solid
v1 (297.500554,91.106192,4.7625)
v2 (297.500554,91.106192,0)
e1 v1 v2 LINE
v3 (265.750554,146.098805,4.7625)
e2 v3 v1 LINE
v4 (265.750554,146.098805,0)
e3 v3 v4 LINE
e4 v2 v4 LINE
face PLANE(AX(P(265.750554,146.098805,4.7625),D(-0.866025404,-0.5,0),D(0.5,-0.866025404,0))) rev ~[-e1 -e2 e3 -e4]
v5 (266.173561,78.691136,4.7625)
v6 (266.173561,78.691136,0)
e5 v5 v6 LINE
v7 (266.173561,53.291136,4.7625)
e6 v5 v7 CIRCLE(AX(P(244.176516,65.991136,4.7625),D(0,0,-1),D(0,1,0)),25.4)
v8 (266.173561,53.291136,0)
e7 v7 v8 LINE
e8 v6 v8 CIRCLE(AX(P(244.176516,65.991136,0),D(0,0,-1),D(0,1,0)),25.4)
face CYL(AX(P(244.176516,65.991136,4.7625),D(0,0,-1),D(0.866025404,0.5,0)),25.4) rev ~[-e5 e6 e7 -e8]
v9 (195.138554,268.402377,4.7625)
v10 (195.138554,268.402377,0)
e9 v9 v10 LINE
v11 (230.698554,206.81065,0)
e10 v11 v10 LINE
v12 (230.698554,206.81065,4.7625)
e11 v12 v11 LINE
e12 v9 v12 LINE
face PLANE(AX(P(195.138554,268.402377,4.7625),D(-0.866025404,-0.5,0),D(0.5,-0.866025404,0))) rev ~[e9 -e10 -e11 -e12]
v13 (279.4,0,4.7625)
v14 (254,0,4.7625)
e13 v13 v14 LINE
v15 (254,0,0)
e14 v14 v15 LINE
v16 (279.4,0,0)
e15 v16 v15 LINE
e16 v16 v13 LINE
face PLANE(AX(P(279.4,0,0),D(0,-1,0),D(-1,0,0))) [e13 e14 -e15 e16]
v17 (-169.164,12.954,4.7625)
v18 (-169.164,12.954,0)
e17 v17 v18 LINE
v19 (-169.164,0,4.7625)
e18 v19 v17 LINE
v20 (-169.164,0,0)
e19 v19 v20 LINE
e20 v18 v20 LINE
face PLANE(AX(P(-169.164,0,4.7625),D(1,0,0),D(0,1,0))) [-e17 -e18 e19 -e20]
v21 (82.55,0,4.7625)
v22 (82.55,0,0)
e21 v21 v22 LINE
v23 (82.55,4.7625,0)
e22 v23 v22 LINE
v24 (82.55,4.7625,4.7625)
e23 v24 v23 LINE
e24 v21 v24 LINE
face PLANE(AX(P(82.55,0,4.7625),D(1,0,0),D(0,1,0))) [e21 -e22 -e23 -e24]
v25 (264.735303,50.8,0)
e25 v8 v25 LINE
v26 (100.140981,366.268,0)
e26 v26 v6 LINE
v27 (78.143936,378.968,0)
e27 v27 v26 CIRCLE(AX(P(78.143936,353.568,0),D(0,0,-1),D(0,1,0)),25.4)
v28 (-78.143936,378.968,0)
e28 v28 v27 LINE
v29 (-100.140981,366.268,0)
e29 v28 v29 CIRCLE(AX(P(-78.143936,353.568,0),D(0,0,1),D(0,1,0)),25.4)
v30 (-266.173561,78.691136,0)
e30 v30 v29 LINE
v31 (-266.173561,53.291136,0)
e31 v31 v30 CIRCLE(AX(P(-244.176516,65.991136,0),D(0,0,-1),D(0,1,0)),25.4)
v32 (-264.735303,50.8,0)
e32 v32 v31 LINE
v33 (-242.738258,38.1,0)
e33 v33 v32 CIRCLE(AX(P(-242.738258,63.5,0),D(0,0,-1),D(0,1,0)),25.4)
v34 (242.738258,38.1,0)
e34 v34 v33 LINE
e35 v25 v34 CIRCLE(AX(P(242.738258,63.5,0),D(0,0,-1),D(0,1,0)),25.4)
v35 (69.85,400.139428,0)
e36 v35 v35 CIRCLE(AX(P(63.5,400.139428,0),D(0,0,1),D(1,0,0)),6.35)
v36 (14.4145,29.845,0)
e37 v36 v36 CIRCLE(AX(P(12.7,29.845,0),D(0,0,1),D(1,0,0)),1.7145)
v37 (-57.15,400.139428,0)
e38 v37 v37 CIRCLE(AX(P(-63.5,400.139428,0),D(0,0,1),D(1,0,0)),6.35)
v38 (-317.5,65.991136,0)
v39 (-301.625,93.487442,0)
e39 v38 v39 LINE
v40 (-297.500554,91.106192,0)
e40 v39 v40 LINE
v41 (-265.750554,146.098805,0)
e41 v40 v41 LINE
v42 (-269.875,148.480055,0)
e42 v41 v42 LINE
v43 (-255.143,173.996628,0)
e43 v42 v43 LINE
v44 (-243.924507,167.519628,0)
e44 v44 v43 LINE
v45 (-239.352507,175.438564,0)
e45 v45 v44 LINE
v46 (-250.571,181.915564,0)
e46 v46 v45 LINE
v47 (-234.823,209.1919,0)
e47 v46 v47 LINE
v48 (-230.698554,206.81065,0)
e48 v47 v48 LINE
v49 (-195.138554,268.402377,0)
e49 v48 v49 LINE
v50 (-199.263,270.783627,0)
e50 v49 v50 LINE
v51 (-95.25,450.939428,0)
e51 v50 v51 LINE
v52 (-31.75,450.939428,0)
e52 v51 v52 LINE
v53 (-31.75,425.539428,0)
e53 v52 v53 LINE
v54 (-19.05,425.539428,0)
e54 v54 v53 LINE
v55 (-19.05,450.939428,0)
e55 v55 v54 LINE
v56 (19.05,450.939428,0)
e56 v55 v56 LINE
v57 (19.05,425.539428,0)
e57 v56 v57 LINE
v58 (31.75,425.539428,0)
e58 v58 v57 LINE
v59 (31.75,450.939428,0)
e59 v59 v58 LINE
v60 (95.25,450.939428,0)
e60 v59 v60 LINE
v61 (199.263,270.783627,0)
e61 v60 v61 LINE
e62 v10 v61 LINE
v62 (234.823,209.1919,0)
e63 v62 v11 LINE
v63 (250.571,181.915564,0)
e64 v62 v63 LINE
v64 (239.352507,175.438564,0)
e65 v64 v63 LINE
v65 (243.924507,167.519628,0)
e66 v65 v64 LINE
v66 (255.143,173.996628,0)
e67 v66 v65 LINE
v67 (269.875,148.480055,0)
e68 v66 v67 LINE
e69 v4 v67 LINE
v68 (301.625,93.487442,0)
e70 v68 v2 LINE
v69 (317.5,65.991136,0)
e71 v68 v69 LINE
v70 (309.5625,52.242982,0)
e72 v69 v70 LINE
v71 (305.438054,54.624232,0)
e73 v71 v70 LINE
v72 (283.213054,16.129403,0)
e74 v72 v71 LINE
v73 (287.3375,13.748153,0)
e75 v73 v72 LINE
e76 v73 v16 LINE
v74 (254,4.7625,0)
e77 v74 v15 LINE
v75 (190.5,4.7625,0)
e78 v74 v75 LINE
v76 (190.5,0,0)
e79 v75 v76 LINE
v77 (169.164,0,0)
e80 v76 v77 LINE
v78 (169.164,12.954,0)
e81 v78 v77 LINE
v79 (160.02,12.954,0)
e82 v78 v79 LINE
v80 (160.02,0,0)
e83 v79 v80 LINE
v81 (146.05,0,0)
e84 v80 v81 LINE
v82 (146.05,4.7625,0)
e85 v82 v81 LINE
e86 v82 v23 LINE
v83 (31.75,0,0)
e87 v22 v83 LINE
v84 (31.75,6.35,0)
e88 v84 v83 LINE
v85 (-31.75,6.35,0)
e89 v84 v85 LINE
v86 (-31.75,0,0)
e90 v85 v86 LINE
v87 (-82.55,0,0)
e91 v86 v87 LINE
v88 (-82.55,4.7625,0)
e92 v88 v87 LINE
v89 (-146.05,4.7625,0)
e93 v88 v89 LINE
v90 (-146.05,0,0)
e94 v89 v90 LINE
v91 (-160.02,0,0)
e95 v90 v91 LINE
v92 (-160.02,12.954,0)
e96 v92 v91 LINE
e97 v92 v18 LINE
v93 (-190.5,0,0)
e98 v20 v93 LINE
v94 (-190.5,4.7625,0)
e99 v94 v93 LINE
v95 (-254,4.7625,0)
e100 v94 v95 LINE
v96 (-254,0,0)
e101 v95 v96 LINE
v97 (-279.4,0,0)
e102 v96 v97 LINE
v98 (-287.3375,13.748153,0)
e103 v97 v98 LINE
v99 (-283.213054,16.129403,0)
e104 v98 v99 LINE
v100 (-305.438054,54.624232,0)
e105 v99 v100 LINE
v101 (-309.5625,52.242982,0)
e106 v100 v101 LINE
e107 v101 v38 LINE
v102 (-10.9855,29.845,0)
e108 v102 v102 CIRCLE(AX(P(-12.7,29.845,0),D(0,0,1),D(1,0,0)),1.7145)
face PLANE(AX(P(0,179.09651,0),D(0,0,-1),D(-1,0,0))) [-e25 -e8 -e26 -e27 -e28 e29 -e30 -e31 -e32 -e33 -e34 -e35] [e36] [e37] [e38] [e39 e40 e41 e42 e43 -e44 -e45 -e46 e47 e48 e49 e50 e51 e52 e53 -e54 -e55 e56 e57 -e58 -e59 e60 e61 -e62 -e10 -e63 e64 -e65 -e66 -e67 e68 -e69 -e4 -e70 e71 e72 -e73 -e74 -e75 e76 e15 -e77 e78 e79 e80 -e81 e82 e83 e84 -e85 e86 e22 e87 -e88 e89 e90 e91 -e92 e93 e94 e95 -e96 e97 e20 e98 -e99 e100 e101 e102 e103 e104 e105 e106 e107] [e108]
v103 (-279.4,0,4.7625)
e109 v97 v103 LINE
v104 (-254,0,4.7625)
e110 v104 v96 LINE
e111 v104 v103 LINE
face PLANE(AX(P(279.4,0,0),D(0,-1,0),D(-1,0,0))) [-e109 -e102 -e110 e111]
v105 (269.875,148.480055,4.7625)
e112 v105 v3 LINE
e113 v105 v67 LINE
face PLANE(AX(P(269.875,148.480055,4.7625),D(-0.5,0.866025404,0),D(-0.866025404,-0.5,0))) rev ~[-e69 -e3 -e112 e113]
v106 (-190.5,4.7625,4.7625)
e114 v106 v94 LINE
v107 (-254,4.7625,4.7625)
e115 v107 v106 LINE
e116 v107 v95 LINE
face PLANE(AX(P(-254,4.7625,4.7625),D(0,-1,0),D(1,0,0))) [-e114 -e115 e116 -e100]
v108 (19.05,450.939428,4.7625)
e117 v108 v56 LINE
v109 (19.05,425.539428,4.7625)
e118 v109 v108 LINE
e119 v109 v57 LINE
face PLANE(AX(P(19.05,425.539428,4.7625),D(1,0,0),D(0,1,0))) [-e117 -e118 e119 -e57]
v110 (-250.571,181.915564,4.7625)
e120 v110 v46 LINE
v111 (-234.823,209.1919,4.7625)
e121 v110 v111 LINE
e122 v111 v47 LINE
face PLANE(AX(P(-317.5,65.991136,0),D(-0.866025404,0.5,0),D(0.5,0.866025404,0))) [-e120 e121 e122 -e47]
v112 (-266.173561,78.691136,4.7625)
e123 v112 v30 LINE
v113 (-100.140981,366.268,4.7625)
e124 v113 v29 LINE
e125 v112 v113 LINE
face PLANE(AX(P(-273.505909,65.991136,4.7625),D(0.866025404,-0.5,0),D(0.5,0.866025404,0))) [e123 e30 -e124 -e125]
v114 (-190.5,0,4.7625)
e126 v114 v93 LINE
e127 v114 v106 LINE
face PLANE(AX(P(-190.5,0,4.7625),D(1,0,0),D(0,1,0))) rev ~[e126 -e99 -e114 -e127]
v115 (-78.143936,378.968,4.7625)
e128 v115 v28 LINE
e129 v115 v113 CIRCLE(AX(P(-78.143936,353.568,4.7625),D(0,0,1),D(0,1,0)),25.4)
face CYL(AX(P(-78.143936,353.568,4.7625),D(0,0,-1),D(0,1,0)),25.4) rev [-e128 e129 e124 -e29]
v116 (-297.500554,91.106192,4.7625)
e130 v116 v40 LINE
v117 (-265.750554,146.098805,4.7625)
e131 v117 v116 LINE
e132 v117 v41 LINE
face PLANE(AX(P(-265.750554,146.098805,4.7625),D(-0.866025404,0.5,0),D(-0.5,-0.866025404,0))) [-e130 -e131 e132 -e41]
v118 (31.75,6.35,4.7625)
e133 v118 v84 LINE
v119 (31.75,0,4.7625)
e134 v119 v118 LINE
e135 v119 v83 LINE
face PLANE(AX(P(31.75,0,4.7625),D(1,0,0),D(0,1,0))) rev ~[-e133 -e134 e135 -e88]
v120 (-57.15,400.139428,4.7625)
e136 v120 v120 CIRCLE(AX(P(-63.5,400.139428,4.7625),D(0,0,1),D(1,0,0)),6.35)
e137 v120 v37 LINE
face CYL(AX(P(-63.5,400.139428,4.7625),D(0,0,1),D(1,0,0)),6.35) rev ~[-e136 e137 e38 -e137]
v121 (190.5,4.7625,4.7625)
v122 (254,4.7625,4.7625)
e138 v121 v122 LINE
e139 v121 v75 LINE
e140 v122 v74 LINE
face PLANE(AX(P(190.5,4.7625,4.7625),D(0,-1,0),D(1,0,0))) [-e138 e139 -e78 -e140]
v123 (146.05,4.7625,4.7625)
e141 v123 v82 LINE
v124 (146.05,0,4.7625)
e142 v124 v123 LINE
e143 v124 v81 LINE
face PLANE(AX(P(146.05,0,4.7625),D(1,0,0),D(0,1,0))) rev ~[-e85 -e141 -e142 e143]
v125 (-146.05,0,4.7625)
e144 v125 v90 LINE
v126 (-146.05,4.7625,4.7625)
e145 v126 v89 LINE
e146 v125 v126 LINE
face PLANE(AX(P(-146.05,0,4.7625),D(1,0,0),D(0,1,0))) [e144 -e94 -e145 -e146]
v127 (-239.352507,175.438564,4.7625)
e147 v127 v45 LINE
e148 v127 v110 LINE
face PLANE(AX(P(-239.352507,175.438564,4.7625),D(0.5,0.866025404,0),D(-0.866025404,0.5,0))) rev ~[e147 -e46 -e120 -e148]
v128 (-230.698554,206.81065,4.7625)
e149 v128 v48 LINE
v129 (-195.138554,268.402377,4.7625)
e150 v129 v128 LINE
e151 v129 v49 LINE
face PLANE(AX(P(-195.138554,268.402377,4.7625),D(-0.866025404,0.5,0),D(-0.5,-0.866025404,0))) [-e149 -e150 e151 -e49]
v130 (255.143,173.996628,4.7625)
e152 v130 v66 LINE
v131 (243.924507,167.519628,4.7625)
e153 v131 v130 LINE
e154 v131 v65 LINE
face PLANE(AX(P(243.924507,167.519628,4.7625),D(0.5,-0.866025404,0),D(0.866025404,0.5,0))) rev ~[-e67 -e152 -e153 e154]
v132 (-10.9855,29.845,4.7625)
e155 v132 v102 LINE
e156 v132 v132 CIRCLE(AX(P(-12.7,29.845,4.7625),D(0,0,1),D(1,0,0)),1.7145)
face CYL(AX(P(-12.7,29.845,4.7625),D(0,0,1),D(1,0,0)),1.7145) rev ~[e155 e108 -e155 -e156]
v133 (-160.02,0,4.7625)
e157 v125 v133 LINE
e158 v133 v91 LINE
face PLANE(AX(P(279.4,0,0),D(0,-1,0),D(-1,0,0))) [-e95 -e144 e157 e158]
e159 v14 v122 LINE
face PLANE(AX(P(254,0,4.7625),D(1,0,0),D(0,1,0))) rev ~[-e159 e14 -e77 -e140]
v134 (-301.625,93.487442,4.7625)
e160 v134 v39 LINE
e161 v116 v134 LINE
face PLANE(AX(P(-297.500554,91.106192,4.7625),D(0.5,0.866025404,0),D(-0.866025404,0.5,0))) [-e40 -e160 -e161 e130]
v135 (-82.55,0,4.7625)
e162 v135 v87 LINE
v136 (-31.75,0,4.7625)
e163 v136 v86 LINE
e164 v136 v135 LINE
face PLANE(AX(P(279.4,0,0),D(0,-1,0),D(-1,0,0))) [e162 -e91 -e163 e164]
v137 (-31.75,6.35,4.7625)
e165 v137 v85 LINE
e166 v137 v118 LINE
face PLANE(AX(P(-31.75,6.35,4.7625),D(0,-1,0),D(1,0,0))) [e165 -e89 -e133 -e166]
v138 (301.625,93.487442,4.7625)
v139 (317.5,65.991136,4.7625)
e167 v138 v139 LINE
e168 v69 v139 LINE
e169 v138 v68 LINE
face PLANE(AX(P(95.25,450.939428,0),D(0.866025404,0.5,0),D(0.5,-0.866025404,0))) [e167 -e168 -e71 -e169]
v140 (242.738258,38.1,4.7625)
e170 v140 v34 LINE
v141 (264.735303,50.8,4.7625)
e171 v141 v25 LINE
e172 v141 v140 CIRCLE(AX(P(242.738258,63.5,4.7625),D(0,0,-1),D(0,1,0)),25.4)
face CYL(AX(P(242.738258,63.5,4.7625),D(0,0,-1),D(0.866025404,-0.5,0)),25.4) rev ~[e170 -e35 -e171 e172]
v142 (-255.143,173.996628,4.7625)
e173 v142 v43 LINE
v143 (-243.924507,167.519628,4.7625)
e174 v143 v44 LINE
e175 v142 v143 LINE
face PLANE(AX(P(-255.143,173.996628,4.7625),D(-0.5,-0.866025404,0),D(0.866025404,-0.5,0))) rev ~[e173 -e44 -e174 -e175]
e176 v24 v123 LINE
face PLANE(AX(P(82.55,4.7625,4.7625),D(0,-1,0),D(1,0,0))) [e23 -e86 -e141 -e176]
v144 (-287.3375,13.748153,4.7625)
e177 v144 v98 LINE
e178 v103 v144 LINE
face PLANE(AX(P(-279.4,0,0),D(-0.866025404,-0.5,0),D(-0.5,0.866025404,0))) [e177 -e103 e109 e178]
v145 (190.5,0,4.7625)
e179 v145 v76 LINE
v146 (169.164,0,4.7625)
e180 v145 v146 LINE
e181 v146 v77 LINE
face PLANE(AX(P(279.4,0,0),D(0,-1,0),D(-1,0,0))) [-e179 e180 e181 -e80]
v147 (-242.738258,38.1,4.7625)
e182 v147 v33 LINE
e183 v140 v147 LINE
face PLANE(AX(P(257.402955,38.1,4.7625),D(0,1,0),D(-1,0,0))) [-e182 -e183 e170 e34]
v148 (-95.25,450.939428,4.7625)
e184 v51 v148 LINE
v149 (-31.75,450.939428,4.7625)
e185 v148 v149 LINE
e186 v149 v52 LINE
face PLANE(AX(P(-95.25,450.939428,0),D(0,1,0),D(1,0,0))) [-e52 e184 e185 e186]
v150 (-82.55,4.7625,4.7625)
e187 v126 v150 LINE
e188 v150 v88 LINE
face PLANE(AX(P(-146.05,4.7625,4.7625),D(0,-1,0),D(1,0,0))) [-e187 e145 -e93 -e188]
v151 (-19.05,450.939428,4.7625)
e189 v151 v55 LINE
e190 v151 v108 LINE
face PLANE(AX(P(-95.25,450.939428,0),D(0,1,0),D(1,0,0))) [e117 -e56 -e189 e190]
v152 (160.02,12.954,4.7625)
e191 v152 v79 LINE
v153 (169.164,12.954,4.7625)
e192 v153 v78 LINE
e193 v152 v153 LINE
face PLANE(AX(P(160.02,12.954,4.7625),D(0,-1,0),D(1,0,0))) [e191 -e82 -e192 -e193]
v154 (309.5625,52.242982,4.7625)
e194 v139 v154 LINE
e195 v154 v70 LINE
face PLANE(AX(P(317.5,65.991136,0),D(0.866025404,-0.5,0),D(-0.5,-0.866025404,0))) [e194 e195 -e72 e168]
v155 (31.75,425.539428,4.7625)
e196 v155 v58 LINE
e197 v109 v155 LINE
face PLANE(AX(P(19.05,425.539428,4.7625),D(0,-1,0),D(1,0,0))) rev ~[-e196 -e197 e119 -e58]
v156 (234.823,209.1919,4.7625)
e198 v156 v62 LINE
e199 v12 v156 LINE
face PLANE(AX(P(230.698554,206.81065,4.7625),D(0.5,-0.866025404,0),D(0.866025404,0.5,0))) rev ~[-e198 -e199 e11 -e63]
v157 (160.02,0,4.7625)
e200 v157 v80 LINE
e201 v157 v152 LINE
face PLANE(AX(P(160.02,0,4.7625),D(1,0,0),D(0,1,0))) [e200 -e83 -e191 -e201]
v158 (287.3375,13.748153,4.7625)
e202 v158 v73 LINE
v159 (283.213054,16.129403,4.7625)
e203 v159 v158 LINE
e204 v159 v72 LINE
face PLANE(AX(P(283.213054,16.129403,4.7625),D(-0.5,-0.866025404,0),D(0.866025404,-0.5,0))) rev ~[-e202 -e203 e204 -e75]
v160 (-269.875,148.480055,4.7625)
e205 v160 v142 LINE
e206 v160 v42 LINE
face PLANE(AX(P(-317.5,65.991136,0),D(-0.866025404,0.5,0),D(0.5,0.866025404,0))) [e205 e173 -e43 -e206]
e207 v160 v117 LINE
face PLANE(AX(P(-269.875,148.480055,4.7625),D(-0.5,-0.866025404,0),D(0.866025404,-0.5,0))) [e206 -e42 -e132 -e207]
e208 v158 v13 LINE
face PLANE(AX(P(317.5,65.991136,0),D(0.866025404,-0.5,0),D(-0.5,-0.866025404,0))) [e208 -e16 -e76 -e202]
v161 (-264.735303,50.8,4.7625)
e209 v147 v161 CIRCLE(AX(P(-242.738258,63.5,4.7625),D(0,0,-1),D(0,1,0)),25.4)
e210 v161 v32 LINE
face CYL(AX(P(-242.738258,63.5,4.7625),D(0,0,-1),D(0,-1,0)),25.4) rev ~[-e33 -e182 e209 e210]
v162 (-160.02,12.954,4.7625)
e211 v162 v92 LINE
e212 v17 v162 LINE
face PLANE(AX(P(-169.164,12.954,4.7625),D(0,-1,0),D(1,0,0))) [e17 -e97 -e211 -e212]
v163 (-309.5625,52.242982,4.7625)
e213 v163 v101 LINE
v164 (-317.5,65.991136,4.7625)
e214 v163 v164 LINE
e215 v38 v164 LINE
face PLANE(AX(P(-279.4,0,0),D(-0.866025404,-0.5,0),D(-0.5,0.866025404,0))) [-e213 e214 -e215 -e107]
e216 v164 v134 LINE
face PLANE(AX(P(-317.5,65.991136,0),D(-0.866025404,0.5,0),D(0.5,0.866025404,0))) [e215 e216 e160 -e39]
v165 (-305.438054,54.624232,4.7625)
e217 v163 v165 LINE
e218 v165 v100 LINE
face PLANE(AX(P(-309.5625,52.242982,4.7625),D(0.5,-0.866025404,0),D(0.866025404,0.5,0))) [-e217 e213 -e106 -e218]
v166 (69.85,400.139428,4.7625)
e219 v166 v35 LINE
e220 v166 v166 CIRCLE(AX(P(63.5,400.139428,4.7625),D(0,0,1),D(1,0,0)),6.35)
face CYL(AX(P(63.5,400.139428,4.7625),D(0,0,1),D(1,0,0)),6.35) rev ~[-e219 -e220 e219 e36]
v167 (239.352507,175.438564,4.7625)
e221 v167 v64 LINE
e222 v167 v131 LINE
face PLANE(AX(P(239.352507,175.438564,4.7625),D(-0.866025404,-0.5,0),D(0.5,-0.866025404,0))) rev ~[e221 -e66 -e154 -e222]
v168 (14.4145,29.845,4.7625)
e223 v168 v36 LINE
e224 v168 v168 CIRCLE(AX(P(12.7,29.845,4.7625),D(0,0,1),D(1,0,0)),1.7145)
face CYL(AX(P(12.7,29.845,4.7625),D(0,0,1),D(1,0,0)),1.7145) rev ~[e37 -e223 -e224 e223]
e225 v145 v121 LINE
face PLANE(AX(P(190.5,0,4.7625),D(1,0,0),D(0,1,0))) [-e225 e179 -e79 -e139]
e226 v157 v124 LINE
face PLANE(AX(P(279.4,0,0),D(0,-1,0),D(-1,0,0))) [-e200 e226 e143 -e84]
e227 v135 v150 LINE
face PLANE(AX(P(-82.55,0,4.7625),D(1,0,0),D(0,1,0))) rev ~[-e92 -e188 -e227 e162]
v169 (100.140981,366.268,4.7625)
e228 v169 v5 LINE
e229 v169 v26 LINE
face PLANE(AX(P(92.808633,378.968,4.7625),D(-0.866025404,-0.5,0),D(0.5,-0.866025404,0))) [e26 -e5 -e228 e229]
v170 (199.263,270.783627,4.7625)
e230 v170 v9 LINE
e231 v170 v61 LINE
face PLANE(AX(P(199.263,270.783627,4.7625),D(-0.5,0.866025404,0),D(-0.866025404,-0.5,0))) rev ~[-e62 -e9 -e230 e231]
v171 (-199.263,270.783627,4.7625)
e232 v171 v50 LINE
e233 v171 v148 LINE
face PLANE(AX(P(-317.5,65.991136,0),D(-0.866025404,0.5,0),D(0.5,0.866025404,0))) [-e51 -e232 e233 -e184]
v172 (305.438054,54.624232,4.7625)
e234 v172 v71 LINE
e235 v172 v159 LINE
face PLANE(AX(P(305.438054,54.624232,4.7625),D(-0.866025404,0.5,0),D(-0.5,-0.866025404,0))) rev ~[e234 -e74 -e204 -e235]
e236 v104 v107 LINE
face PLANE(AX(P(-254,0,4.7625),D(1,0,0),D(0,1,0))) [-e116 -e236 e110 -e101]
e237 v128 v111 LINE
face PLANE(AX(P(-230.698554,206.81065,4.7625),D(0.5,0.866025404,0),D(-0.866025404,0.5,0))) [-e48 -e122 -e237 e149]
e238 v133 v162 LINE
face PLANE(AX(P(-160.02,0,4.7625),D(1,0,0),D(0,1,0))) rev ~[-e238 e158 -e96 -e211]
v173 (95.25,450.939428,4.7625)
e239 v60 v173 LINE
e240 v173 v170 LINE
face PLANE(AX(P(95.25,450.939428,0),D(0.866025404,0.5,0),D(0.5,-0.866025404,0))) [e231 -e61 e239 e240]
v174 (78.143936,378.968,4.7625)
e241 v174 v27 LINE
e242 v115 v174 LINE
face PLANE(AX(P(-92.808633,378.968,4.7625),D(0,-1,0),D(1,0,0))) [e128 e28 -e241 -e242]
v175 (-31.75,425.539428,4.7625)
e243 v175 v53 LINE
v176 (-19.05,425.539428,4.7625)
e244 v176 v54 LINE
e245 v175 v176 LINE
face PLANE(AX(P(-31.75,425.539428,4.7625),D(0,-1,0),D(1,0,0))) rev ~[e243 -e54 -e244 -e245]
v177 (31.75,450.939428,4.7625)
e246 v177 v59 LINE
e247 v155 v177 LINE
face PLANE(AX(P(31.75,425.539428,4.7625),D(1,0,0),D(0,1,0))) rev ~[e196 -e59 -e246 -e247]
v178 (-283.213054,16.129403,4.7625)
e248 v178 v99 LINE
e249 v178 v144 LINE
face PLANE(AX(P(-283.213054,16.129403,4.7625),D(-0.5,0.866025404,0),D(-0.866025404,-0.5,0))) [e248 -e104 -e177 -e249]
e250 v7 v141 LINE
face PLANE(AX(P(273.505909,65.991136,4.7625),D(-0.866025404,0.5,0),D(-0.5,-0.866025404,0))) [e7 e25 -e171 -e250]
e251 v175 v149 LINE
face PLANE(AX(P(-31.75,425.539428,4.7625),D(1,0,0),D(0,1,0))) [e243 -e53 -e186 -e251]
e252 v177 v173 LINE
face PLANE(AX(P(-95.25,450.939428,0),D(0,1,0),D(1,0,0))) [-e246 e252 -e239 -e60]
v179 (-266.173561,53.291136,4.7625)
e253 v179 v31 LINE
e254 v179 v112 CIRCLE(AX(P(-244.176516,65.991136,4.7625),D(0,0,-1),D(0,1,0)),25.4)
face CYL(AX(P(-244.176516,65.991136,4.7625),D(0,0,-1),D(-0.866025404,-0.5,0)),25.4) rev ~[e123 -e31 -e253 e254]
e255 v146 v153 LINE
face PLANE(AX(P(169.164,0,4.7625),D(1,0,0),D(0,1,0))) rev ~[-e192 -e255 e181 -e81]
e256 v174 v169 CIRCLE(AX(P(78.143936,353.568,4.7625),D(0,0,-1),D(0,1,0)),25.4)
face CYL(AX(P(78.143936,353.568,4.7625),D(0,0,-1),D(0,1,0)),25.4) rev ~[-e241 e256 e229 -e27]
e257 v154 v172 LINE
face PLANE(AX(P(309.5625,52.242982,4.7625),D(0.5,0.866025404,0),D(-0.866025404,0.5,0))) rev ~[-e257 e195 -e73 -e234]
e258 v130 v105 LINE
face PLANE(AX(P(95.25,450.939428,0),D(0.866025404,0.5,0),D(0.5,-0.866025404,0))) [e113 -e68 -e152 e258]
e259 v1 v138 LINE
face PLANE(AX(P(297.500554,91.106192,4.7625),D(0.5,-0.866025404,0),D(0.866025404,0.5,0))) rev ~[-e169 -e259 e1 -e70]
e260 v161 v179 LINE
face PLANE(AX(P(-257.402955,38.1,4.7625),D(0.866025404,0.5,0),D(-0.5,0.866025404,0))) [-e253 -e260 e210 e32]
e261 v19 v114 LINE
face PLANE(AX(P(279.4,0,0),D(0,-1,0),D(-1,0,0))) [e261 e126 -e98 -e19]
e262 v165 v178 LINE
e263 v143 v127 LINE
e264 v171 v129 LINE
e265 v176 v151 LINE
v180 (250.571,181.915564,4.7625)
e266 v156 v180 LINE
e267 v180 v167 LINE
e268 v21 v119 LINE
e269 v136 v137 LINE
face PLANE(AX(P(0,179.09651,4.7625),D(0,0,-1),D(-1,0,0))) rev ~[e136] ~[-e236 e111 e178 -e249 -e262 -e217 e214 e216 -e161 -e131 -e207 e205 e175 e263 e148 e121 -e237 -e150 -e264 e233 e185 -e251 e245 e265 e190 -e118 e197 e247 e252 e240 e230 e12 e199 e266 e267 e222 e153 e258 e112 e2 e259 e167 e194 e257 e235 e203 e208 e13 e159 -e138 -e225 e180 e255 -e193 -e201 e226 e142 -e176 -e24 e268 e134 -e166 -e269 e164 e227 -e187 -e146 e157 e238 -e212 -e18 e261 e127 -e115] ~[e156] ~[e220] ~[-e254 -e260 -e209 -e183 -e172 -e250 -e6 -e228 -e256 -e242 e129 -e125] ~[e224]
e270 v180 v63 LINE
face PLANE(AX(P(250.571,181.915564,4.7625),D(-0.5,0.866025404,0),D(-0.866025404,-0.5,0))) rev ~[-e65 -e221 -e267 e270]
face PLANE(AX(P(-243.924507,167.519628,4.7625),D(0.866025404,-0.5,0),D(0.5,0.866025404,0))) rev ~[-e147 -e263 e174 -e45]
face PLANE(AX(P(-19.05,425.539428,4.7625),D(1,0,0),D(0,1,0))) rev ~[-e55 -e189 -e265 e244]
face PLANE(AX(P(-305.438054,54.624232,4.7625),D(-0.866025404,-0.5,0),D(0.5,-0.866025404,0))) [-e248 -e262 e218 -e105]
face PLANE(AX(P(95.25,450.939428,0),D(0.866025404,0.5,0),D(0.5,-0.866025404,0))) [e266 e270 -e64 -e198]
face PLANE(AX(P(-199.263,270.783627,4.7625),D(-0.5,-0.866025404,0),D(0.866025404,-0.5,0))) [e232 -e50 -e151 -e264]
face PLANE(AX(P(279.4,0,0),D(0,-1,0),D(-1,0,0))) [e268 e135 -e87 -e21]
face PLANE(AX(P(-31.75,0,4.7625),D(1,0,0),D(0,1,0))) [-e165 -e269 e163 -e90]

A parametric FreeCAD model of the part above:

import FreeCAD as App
import Part
import Sketcher
from FreeCAD import Vector
Q = App.Units.Quantity


def edges_at(feature, points):
    """Names of the edges that pass closest to the given points."""
    edges = feature.Shape.Edges
    near = lambda p: min(range(len(edges)), key=lambda i: edges[i].distToShape(Part.Vertex(*p))[0])
    return sorted({f"Edge{near(p) + 1}" for p in points})

doc = App.newDocument("Part")
body = doc.addObject("PartDesign::Body", "Body")

# Sketch on XY plane
sketch1 = body.newObject("Sketcher::SketchObject", "Sketch")
sketch1.AttachmentSupport = (doc.getObject("XY_Plane"), [""])
sketch1.MapMode = "FlatFace"
sketch1.addGeometry(Part.LineSegment(Vector(95, 451, 0), Vector(-95, 451, 0)), False)
sketch1.addGeometry(Part.LineSegment(Vector(-95, 451, 0), Vector(-318, 66, 0)), False)
sketch1.addGeometry(Part.LineSegment(Vector(-318, 66, 0), Vector(-279, 0, 0)), False)
sketch1.addGeometry(Part.LineSegment(Vector(-279, 0, 0), Vector(279, 0, 0)), False)
sketch1.addGeometry(Part.LineSegment(Vector(279, 0, 0), Vector(318, 66, 0)), False)
sketch1.addGeometry(Part.LineSegment(Vector(318, 66, 0), Vector(95, 451, 0)), False)
sketch1.addConstraint(Sketcher.Constraint("Coincident", 0, 2, 1, 1))
sketch1.addConstraint(Sketcher.Constraint("Coincident", 1, 2, 2, 1))
sketch1.addConstraint(Sketcher.Constraint("Coincident", 2, 2, 3, 1))
sketch1.addConstraint(Sketcher.Constraint("Coincident", 3, 2, 4, 1))
sketch1.addConstraint(Sketcher.Constraint("Coincident", 4, 2, 5, 1))
sketch1.addConstraint(Sketcher.Constraint("Coincident", 5, 2, 0, 1))
sketch1.addConstraint(Sketcher.Constraint("Horizontal", 0))
sketch1.addConstraint(Sketcher.Constraint("Horizontal", 3))
sketch1.addConstraint(Sketcher.Constraint("Symmetric", 2, 2, 3, 2, -1, 1))
sketch1.addConstraint(Sketcher.Constraint("Symmetric", 1, 2, 4, 2, -2))
sketch1.addConstraint(Sketcher.Constraint("Parallel", 1, 4))
sketch1.addConstraint(Sketcher.Constraint("Parallel", 2, 5))
sketch1.addConstraint(Sketcher.Constraint("DistanceX", 3, 1, 3, 2, Q("22 in")))
sketch1.addConstraint(Sketcher.Constraint("Distance", 2, Q("3 in")))
sketch1.addConstraint(Sketcher.Constraint("DistanceX", 0, 2, 0, 1, Q("7.5 in")))
sketch1.addConstraint(Sketcher.Constraint("Angle", 1, Q("-120 deg")))
pad1 = body.newObject("PartDesign::Pad", "Pad")
pad1.Profile = sketch1
pad1.Length = Q("0.1875 in")

# Sketch on XY plane
sketch2 = body.newObject("Sketcher::SketchObject", "Sketch001")
sketch2.AttachmentSupport = (doc.getObject("XY_Plane"), [""])
sketch2.MapMode = "FlatFace"
sketch2.AttachmentOffset = App.Placement(Vector(0, 0, 0.1875 * 25.4), App.Rotation())
sketch2.addGeometry(Part.LineSegment(Vector(93, 379, 0), Vector(-93, 379, 0)), False)
sketch2.addGeometry(Part.LineSegment(Vector(-93, 379, 0), Vector(-274, 66, 0)), False)
sketch2.addGeometry(Part.LineSegment(Vector(-274, 66, 0), Vector(-257, 38, 0)), False)
sketch2.addGeometry(Part.LineSegment(Vector(-257, 38, 0), Vector(257, 38, 0)), False)
sketch2.addGeometry(Part.LineSegment(Vector(257, 38, 0), Vector(274, 66, 0)), False)
sketch2.addGeometry(Part.LineSegment(Vector(274, 66, 0), Vector(93, 379, 0)), False)
sketch2.addConstraint(Sketcher.Constraint("Coincident", 0, 2, 1, 1))
sketch2.addConstraint(Sketcher.Constraint("Coincident", 1, 2, 2, 1))
sketch2.addConstraint(Sketcher.Constraint("Coincident", 2, 2, 3, 1))
sketch2.addConstraint(Sketcher.Constraint("Coincident", 3, 2, 4, 1))
sketch2.addConstraint(Sketcher.Constraint("Coincident", 4, 2, 5, 1))
sketch2.addConstraint(Sketcher.Constraint("Coincident", 5, 2, 0, 1))
sketch2.addConstraint(Sketcher.Constraint("Horizontal", 0))
sketch2.addConstraint(Sketcher.Constraint("Horizontal", 3))
sketch2.addConstraint(Sketcher.Constraint("Symmetric", 1, 2, 4, 2, -2))
sketch2.addConstraint(Sketcher.Constraint("Parallel", 1, 4))
sketch2.addConstraint(Sketcher.Constraint("Parallel", 2, 5))
sketch2.addConstraint(Sketcher.Constraint("Equal", 2, 4))
sketch2.addConstraint(Sketcher.Constraint("Angle", 1, Q("-120 deg")))
sketch2.addConstraint(Sketcher.Constraint("DistanceY", -1, 1, 2, 2, Q("1.5 in")))
sketch2.addConstraint(Sketcher.Constraint("DistanceY", -1, 1, 0, 2, Q("14.92 in")))
sketch2.addConstraint(Sketcher.Constraint("DistanceX", 3, 1, 3, 2, 514.805909))
sketch2.addConstraint(Sketcher.Constraint("Distance", 2, 32.205909))
pocket1 = body.newObject("PartDesign::Pocket", "Pocket")
pocket1.Profile = sketch2
pocket1.Type = "UpToFirst"
doc.recompute()

fillet = body.newObject("PartDesign::Fillet", "Fillet")
fillet.Base = (pocket1, edges_at(pocket1, [
    (-273.506, 65.991, 2.381),
    (-92.809, 378.968, 2.381),
    (92.809, 378.968, 2.381),
    (273.506, 65.991, 2.381),
    (257.403, 38.1, 2.381),
    (-257.403, 38.1, 2.381),
]))
fillet.Radius = Q("1 in")

# Sketch on XY plane
sketch3 = body.newObject("Sketcher::SketchObject", "Sketch002")
sketch3.AttachmentSupport = (doc.getObject("XY_Plane"), [""])
sketch3.MapMode = "FlatFace"
sketch3.AttachmentOffset = App.Placement(Vector(0, 0, 0.1875 * 25.4), App.Rotation())
sketch3.addGeometry(Part.LineSegment(Vector(-254, 4.8, 0), Vector(-254, 0, 0)), False)
sketch3.addGeometry(Part.LineSegment(Vector(-254, 0, 0), Vector(-190.5, 0, 0)), False)
sketch3.addGeometry(Part.LineSegment(Vector(-190.5, 0, 0), Vector(-190.5, 4.8, 0)), False)
sketch3.addGeometry(Part.LineSegment(Vector(-190.5, 4.8, 0), Vector(-254, 4.8, 0)), False)
sketch3.addGeometry(Part.LineSegment(Vector(-146.1, 4.8, 0), Vector(-146.1, 0, 0)), False)
sketch3.addGeometry(Part.LineSegment(Vector(-146.1, 0, 0), Vector(-82.5, 0, 0)), False)
sketch3.addGeometry(Part.LineSegment(Vector(-82.5, 0, 0), Vector(-82.5, 4.8, 0)), False)
sketch3.addGeometry(Part.LineSegment(Vector(-82.5, 4.8, 0), Vector(-146.1, 4.8, 0)), False)
sketch3.addGeometry(Part.LineSegment(Vector(-31.8, 6.3, 0), Vector(-31.8, 0, 0)), False)
sketch3.addGeometry(Part.LineSegment(Vector(-31.8, 0, 0), Vector(31.8, 0, 0)), False)
sketch3.addGeometry(Part.LineSegment(Vector(31.8, 0, 0), Vector(31.8, 6.3, 0)), False)
sketch3.addGeometry(Part.LineSegment(Vector(31.8, 6.3, 0), Vector(-31.8, 6.3, 0)), False)
sketch3.addGeometry(Part.LineSegment(Vector(-195.1, 268.4, 0), Vector(-199.3, 270.8, 0)), False)
sketch3.addGeometry(Part.LineSegment(Vector(-199.3, 270.8, 0), Vector(-234.8, 209.2, 0)), False)
sketch3.addGeometry(Part.LineSegment(Vector(-234.8, 209.2, 0), Vector(-230.7, 206.8, 0)), False)
sketch3.addGeometry(Part.LineSegment(Vector(-230.7, 206.8, 0), Vector(-195.1, 268.4, 0)), False)
sketch3.addGeometry(Part.LineSegment(Vector(-265.8, 146.1, 0), Vector(-269.9, 148.5, 0)), False)
sketch3.addGeometry(Part.LineSegment(Vector(-269.9, 148.5, 0), Vector(-301.6, 93.5, 0)), False)
sketch3.addGeometry(Part.LineSegment(Vector(-301.6, 93.5, 0), Vector(-297.5, 91.1, 0)), False)
sketch3.addGeometry(Part.LineSegment(Vector(-297.5, 91.1, 0), Vector(-265.8, 146.1, 0)), False)
sketch3.addGeometry(Part.LineSegment(Vector(-305.4, 54.6, 0), Vector(-309.6, 52.2, 0)), False)
sketch3.addGeometry(Part.LineSegment(Vector(-309.6, 52.2, 0), Vector(-287.3, 13.7, 0)), False)
sketch3.addGeometry(Part.LineSegment(Vector(-287.3, 13.7, 0), Vector(-283.2, 16.1, 0)), False)
sketch3.addGeometry(Part.LineSegment(Vector(-283.2, 16.1, 0), Vector(-305.4, 54.6, 0)), False)
sketch3.addGeometry(Part.LineSegment(Vector(287.3, 13.7, 0), Vector(309.6, 52.2, 0)), False)
sketch3.addGeometry(Part.LineSegment(Vector(309.6, 52.2, 0), Vector(305.4, 54.6, 0)), False)
sketch3.addGeometry(Part.LineSegment(Vector(305.4, 54.6, 0), Vector(283.2, 16.1, 0)), False)
sketch3.addGeometry(Part.LineSegment(Vector(283.2, 16.1, 0), Vector(287.3, 13.7, 0)), False)
sketch3.addGeometry(Part.LineSegment(Vector(301.6, 93.5, 0), Vector(269.9, 148.5, 0)), False)
sketch3.addGeometry(Part.LineSegment(Vector(269.9, 148.5, 0), Vector(265.8, 146.1, 0)), False)
sketch3.addGeometry(Part.LineSegment(Vector(265.8, 146.1, 0), Vector(297.5, 91.1, 0)), False)
sketch3.addGeometry(Part.LineSegment(Vector(297.5, 91.1, 0), Vector(301.6, 93.5, 0)), False)
sketch3.addGeometry(Part.LineSegment(Vector(234.8, 209.2, 0), Vector(199.3, 270.8, 0)), False)
sketch3.addGeometry(Part.LineSegment(Vector(199.3, 270.8, 0), Vector(195.1, 268.4, 0)), False)
sketch3.addGeometry(Part.LineSegment(Vector(195.1, 268.4, 0), Vector(230.7, 206.8, 0)), False)
sketch3.addGeometry(Part.LineSegment(Vector(230.7, 206.8, 0), Vector(234.8, 209.2, 0)), False)
sketch3.addGeometry(Part.LineSegment(Vector(82.5, 4.8, 0), Vector(82.5, 0, 0)), False)
sketch3.addGeometry(Part.LineSegment(Vector(82.5, 0, 0), Vector(146.1, 0, 0)), False)
sketch3.addGeometry(Part.LineSegment(Vector(146.1, 0, 0), Vector(146.1, 4.8, 0)), False)
sketch3.addGeometry(Part.LineSegment(Vector(146.1, 4.8, 0), Vector(82.5, 4.8, 0)), False)
sketch3.addGeometry(Part.LineSegment(Vector(190.5, 4.8, 0), Vector(190.5, 0, 0)), False)
sketch3.addGeometry(Part.LineSegment(Vector(190.5, 0, 0), Vector(254, 0, 0)), False)
sketch3.addGeometry(Part.LineSegment(Vector(254, 0, 0), Vector(254, 4.8, 0)), False)
sketch3.addGeometry(Part.LineSegment(Vector(254, 4.8, 0), Vector(190.5, 4.8, 0)), False)
sketch3.addGeometry(Part.LineSegment(Vector(-31.8, 450.9, 0), Vector(-31.8, 425.5, 0)), False)
sketch3.addGeometry(Part.LineSegment(Vector(-31.8, 425.5, 0), Vector(-19.1, 425.5, 0)), False)
sketch3.addGeometry(Part.LineSegment(Vector(-19.1, 425.5, 0), Vector(-19.1, 450.9, 0)), False)
sketch3.addGeometry(Part.LineSegment(Vector(-19.1, 450.9, 0), Vector(-31.8, 450.9, 0)), False)
sketch3.addGeometry(Part.LineSegment(Vector(19.1, 450.9, 0), Vector(19.1, 425.5, 0)), False)
sketch3.addGeometry(Part.LineSegment(Vector(19.1, 425.5, 0), Vector(31.8, 425.5, 0)), False)
sketch3.addGeometry(Part.LineSegment(Vector(31.8, 425.5, 0), Vector(31.8, 450.9, 0)), False)
sketch3.addGeometry(Part.LineSegment(Vector(31.8, 450.9, 0), Vector(19.1, 450.9, 0)), False)
sketch3.addConstraint(Sketcher.Constraint("Coincident", 0, 2, 1, 1))
sketch3.addConstraint(Sketcher.Constraint("Coincident", 1, 2, 2, 1))
sketch3.addConstraint(Sketcher.Constraint("Coincident", 2, 2, 3, 1))
sketch3.addConstraint(Sketcher.Constraint("Coincident", 3, 2, 0, 1))
sketch3.addConstraint(Sketcher.Constraint("Coincident", 4, 2, 5, 1))
sketch3.addConstraint(Sketcher.Constraint("Coincident", 5, 2, 6, 1))
sketch3.addConstraint(Sketcher.Constraint("Coincident", 6, 2, 7, 1))
sketch3.addConstraint(Sketcher.Constraint("Coincident", 7, 2, 4, 1))
sketch3.addConstraint(Sketcher.Constraint("Coincident", 8, 2, 9, 1))
sketch3.addConstraint(Sketcher.Constraint("Coincident", 9, 2, 10, 1))
sketch3.addConstraint(Sketcher.Constraint("Coincident", 10, 2, 11, 1))
sketch3.addConstraint(Sketcher.Constraint("Coincident", 11, 2, 8, 1))
sketch3.addConstraint(Sketcher.Constraint("Coincident", 12, 2, 13, 1))
sketch3.addConstraint(Sketcher.Constraint("Coincident", 13, 2, 14, 1))
sketch3.addConstraint(Sketcher.Constraint("Coincident", 14, 2, 15, 1))
sketch3.addConstraint(Sketcher.Constraint("Coincident", 15, 2, 12, 1))
sketch3.addConstraint(Sketcher.Constraint("Coincident", 16, 2, 17, 1))
sketch3.addConstraint(Sketcher.Constraint("Coincident", 17, 2, 18, 1))
sketch3.addConstraint(Sketcher.Constraint("Coincident", 18, 2, 19, 1))
sketch3.addConstraint(Sketcher.Constraint("Coincident", 19, 2, 16, 1))
sketch3.addConstraint(Sketcher.Constraint("Coincident", 20, 2, 21, 1))
sketch3.addConstraint(Sketcher.Constraint("Coincident", 21, 2, 22, 1))
sketch3.addConstraint(Sketcher.Constraint("Coincident", 22, 2, 23, 1))
sketch3.addConstraint(Sketcher.Constraint("Coincident", 23, 2, 20, 1))
sketch3.addConstraint(Sketcher.Constraint("Coincident", 24, 2, 25, 1))
sketch3.addConstraint(Sketcher.Constraint("Coincident", 25, 2, 26, 1))
sketch3.addConstraint(Sketcher.Constraint("Coincident", 26, 2, 27, 1))
sketch3.addConstraint(Sketcher.Constraint("Coincident", 27, 2, 24, 1))
sketch3.addConstraint(Sketcher.Constraint("Coincident", 28, 2, 29, 1))
sketch3.addConstraint(Sketcher.Constraint("Coincident", 29, 2, 30, 1))
sketch3.addConstraint(Sketcher.Constraint("Coincident", 30, 2, 31, 1))
sketch3.addConstraint(Sketcher.Constraint("Coincident", 31, 2, 28, 1))
sketch3.addConstraint(Sketcher.Constraint("Coincident", 32, 2, 33, 1))
sketch3.addConstraint(Sketcher.Constraint("Coincident", 33, 2, 34, 1))
sketch3.addConstraint(Sketcher.Constraint("Coincident", 34, 2, 35, 1))
sketch3.addConstraint(Sketcher.Constraint("Coincident", 35, 2, 32, 1))
sketch3.addConstraint(Sketcher.Constraint("Coincident", 36, 2, 37, 1))
sketch3.addConstraint(Sketcher.Constraint("Coincident", 37, 2, 38, 1))
sketch3.addConstraint(Sketcher.Constraint("Coincident", 38, 2, 39, 1))
sketch3.addConstraint(Sketcher.Constraint("Coincident", 39, 2, 36, 1))
sketch3.addConstraint(Sketcher.Constraint("Coincident", 40, 2, 41, 1))
sketch3.addConstraint(Sketcher.Constraint("Coincident", 41, 2, 42, 1))
sketch3.addConstraint(Sketcher.Constraint("Coincident", 42, 2, 43, 1))
sketch3.addConstraint(Sketcher.Constraint("Coincident", 43, 2, 40, 1))
sketch3.addConstraint(Sketcher.Constraint("Coincident", 44, 2, 45, 1))
sketch3.addConstraint(Sketcher.Constraint("Coincident", 45, 2, 46, 1))
sketch3.addConstraint(Sketcher.Constraint("Coincident", 46, 2, 47, 1))
sketch3.addConstraint(Sketcher.Constraint("Coincident", 47, 2, 44, 1))
sketch3.addConstraint(Sketcher.Constraint("Coincident", 48, 2, 49, 1))
sketch3.addConstraint(Sketcher.Constraint("Coincident", 49, 2, 50, 1))
sketch3.addConstraint(Sketcher.Constraint("Coincident", 50, 2, 51, 1))
sketch3.addConstraint(Sketcher.Constraint("Coincident", 51, 2, 48, 1))
sketch3.addConstraint(Sketcher.Constraint("Vertical", 0))
sketch3.addConstraint(Sketcher.Constraint("Horizontal", 1))
sketch3.addConstraint(Sketcher.Constraint("Vertical", 2))
sketch3.addConstraint(Sketcher.Constraint("Horizontal", 3))
sketch3.addConstraint(Sketcher.Constraint("Vertical", 4))
sketch3.addConstraint(Sketcher.Constraint("Horizontal", 5))
sketch3.addConstraint(Sketcher.Constraint("Vertical", 6))
sketch3.addConstraint(Sketcher.Constraint("Horizontal", 7))
sketch3.addConstraint(Sketcher.Constraint("Vertical", 8))
sketch3.addConstraint(Sketcher.Constraint("Horizontal", 9))
sketch3.addConstraint(Sketcher.Constraint("Vertical", 10))
sketch3.addConstraint(Sketcher.Constraint("Horizontal", 11))
sketch3.addConstraint(Sketcher.Constraint("Vertical", 36))
sketch3.addConstraint(Sketcher.Constraint("Horizontal", 37))
sketch3.addConstraint(Sketcher.Constraint("Vertical", 38))
sketch3.addConstraint(Sketcher.Constraint("Horizontal", 39))
sketch3.addConstraint(Sketcher.Constraint("Vertical", 40))
sketch3.addConstraint(Sketcher.Constraint("Horizontal", 41))
sketch3.addConstraint(Sketcher.Constraint("Vertical", 42))
sketch3.addConstraint(Sketcher.Constraint("Horizontal", 43))
sketch3.addConstraint(Sketcher.Constraint("Vertical", 44))
sketch3.addConstraint(Sketcher.Constraint("Horizontal", 45))
sketch3.addConstraint(Sketcher.Constraint("Vertical", 46))
sketch3.addConstraint(Sketcher.Constraint("Horizontal", 47))
sketch3.addConstraint(Sketcher.Constraint("Vertical", 48))
sketch3.addConstraint(Sketcher.Constraint("Horizontal", 49))
sketch3.addConstraint(Sketcher.Constraint("Vertical", 50))
sketch3.addConstraint(Sketcher.Constraint("Horizontal", 51))
sketch3.addConstraint(Sketcher.Constraint("Symmetric", 8, 2, 9, 2, -1, 1))
sketch3.addConstraint(Sketcher.Constraint("Symmetric", 5, 2, 36, 2, -1, 1))
sketch3.addConstraint(Sketcher.Constraint("Symmetric", 1, 2, 40, 2, -1, 1))
sketch3.addConstraint(Sketcher.Constraint("Symmetric", 20, 2, 24, 2, -2))
sketch3.addConstraint(Sketcher.Constraint("Symmetric", 23, 2, 25, 2, -2))
sketch3.addConstraint(Sketcher.Constraint("Symmetric", 22, 2, 26, 2, -2))
sketch3.addConstraint(Sketcher.Constraint("Symmetric", 21, 2, 27, 2, -2))
sketch3.addConstraint(Sketcher.Constraint("Symmetric", 16, 2, 28, 2, -2))
sketch3.addConstraint(Sketcher.Constraint("Symmetric", 19, 2, 29, 2, -2))
sketch3.addConstraint(Sketcher.Constraint("Symmetric", 18, 2, 30, 2, -2))
sketch3.addConstraint(Sketcher.Constraint("Symmetric", 17, 2, 31, 2, -2))
sketch3.addConstraint(Sketcher.Constraint("Symmetric", 12, 2, 32, 2, -2))
sketch3.addConstraint(Sketcher.Constraint("Symmetric", 15, 2, 33, 2, -2))
sketch3.addConstraint(Sketcher.Constraint("Symmetric", 14, 2, 34, 2, -2))
sketch3.addConstraint(Sketcher.Constraint("Symmetric", 13, 2, 35, 2, -2))
sketch3.addConstraint(Sketcher.Constraint("Symmetric", 4, 2, 37, 2, -2))
sketch3.addConstraint(Sketcher.Constraint("Symmetric", 0, 2, 41, 2, -2))
sketch3.addConstraint(Sketcher.Constraint("Symmetric", 45, 2, 48, 2, -2))
sketch3.addConstraint(Sketcher.Constraint("Symmetric", 47, 2, 50, 2, -2))
sketch3.addConstraint(Sketcher.Constraint("Perpendicular", 12, 13))
sketch3.addConstraint(Sketcher.Constraint("Perpendicular", 13, 14))
sketch3.addConstraint(Sketcher.Constraint("Perpendicular", 14, 15))
sketch3.addConstraint(Sketcher.Constraint("Perpendicular", 15, 16))
sketch3.addConstraint(Sketcher.Constraint("Perpendicular", 16, 17))
sketch3.addConstraint(Sketcher.Constraint("Perpendicular", 17, 18))
sketch3.addConstraint(Sketcher.Constraint("Perpendicular", 18, 19))
sketch3.addConstraint(Sketcher.Constraint("Perpendicular", 20, 21))
sketch3.addConstraint(Sketcher.Constraint("Perpendicular", 21, 22))
sketch3.addConstraint(Sketcher.Constraint("Perpendicular", 22, 23))
sketch3.addConstraint(Sketcher.Constraint("Parallel", 19, 24))
sketch3.addConstraint(Sketcher.Constraint("Horizontal", 3, 2, 6, 2))
sketch3.addConstraint(Sketcher.Constraint("Horizontal", 7, 2, 38, 2))
sketch3.addConstraint(Sketcher.Constraint("Horizontal", 39, 2, 42, 2))
sketch3.addConstraint(Sketcher.Constraint("Vertical", 11, 2, 44, 2))
sketch3.addConstraint(Sketcher.Constraint("Equal", 3, 5))
sketch3.addConstraint(Sketcher.Constraint("Equal", 7, 9))
sketch3.addConstraint(Sketcher.Constraint("Equal", 14, 16))
sketch3.addConstraint(Sketcher.Constraint("Equal", 18, 20))
sketch3.addConstraint(Sketcher.Constraint("DistanceY", 44, 2, 44, 1, Q("1 in")))
sketch3.addConstraint(Sketcher.Constraint("DistanceX", 1, 1, 1, 2, Q("2.5 in")))
sketch3.addConstraint(Sketcher.Constraint("DistanceX", 45, 1, 45, 2, Q("0.5 in")))
sketch3.addConstraint(Sketcher.Constraint("DistanceX", 0, 2, -1, 1, Q("10 in")))
sketch3.addConstraint(Sketcher.Constraint("Angle", 12, Q("150 deg")))
sketch3.addConstraint(Sketcher.Constraint("DistanceX", 5, 2, 8, 2, Q("2 in")))
sketch3.addConstraint(Sketcher.Constraint("Distance", 13, Q("2.8 in")))
sketch3.addConstraint(Sketcher.Constraint("Distance", 17, Q("2.5 in")))
sketch3.addConstraint(Sketcher.Constraint("DistanceY", 8, 2, 8, 1, Q("0.25 in")))
sketch3.addConstraint(Sketcher.Constraint("Distance", 21, Q("1.75 in")))
sketch3.addConstraint(Sketcher.Constraint("DistanceY", 0, 2, 0, 1, Q("0.1875 in")))
sketch3.addConstraint(Sketcher.Constraint("DistanceX", 16, 2, 13, 2, Q("1.38 in")))
sketch3.addConstraint(Sketcher.Constraint("Distance", 12, Q("0.1875 in")))
sketch3.addConstraint(Sketcher.Constraint("DistanceX", 12, 2, -1, 1, Q("7.845 in")))
sketch3.addConstraint(Sketcher.Constraint("DistanceX", 20, 2, -1, 1, Q("12.1875 in")))
sketch3.addConstraint(Sketcher.Constraint("DistanceY", -1, 1, 13, 2, 209.1919))
sketch3.addConstraint(Sketcher.Constraint("DistanceY", 12, 2, 44, 2, 154.755801))
sketch3.addConstraint(Sketcher.Constraint("DistanceY", 16, 2, 12, 2, 122.303572))
sketch3.addConstraint(Sketcher.Constraint("DistanceY", 20, 2, 18, 2, 38.86321))
pocket2 = body.newObject("PartDesign::Pocket", "Pocket001")
pocket2.Profile = sketch3
pocket2.Type = "ThroughAll"

# Sketch on XY plane
sketch4 = body.newObject("Sketcher::SketchObject", "Sketch003")
sketch4.AttachmentSupport = (doc.getObject("XY_Plane"), [""])
sketch4.MapMode = "FlatFace"
sketch4.AttachmentOffset = App.Placement(Vector(0, 0, 0.1875 * 25.4), App.Rotation())
sketch4.addGeometry(Part.LineSegment(Vector(-239.4, 175.4, 0), Vector(-250.6, 181.9, 0)), False)
sketch4.addGeometry(Part.LineSegment(Vector(-250.6, 181.9, 0), Vector(-255.1, 174, 0)), False)
sketch4.addGeometry(Part.LineSegment(Vector(-255.1, 174, 0), Vector(-243.9, 167.5, 0)), False)
sketch4.addGeometry(Part.LineSegment(Vector(-243.9, 167.5, 0), Vector(-239.4, 175.4, 0)), False)
sketch4.addGeometry(Part.LineSegment(Vector(-169.2, 13, 0), Vector(-169.2, 0, 0)), False)
sketch4.addGeometry(Part.LineSegment(Vector(-169.2, 0, 0), Vector(-160, 0, 0)), False)
sketch4.addGeometry(Part.LineSegment(Vector(-160, 0, 0), Vector(-160, 13, 0)), False)
sketch4.addGeometry(Part.LineSegment(Vector(-160, 13, 0), Vector(-169.2, 13, 0)), False)
sketch4.addGeometry(Part.LineSegment(Vector(160, 13, 0), Vector(160, 0, 0)), False)
sketch4.addGeometry(Part.LineSegment(Vector(160, 0, 0), Vector(169.2, 0, 0)), False)
sketch4.addGeometry(Part.LineSegment(Vector(169.2, 0, 0), Vector(169.2, 13, 0)), False)
sketch4.addGeometry(Part.LineSegment(Vector(169.2, 13, 0), Vector(160, 13, 0)), False)
sketch4.addGeometry(Part.LineSegment(Vector(250.6, 181.9, 0), Vector(239.4, 175.4, 0)), False)
sketch4.addGeometry(Part.LineSegment(Vector(239.4, 175.4, 0), Vector(243.9, 167.5, 0)), False)
sketch4.addGeometry(Part.LineSegment(Vector(243.9, 167.5, 0), Vector(255.1, 174, 0)), False)
sketch4.addGeometry(Part.LineSegment(Vector(255.1, 174, 0), Vector(250.6, 181.9, 0)), False)
sketch4.addGeometry(Part.Circle(Vector(-12.7, 29.8, 0), Vector(0, 0, 1), 1.7), False)
sketch4.addGeometry(Part.Circle(Vector(12.7, 29.8, 0), Vector(0, 0, 1), 1.7), False)
sketch4.addGeometry(Part.Circle(Vector(63.5, 400.1, 0), Vector(0, 0, 1), 6.3), False)
sketch4.addGeometry(Part.Circle(Vector(-63.5, 400.1, 0), Vector(0, 0, 1), 6.3), False)
sketch4.addConstraint(Sketcher.Constraint("Coincident", 0, 2, 1, 1))
sketch4.addConstraint(Sketcher.Constraint("Coincident", 1, 2, 2, 1))
sketch4.addConstraint(Sketcher.Constraint("Coincident", 2, 2, 3, 1))
sketch4.addConstraint(Sketcher.Constraint("Coincident", 3, 2, 0, 1))
sketch4.addConstraint(Sketcher.Constraint("Coincident", 4, 2, 5, 1))
sketch4.addConstraint(Sketcher.Constraint("Coincident", 5, 2, 6, 1))
sketch4.addConstraint(Sketcher.Constraint("Coincident", 6, 2, 7, 1))
sketch4.addConstraint(Sketcher.Constraint("Coincident", 7, 2, 4, 1))
sketch4.addConstraint(Sketcher.Constraint("Coincident", 8, 2, 9, 1))
sketch4.addConstraint(Sketcher.Constraint("Coincident", 9, 2, 10, 1))
sketch4.addConstraint(Sketcher.Constraint("Coincident", 10, 2, 11, 1))
sketch4.addConstraint(Sketcher.Constraint("Coincident", 11, 2, 8, 1))
sketch4.addConstraint(Sketcher.Constraint("Coincident", 12, 2, 13, 1))
sketch4.addConstraint(Sketcher.Constraint("Coincident", 13, 2, 14, 1))
sketch4.addConstraint(Sketcher.Constraint("Coincident", 14, 2, 15, 1))
sketch4.addConstraint(Sketcher.Constraint("Coincident", 15, 2, 12, 1))
sketch4.addConstraint(Sketcher.Constraint("Vertical", 4))
sketch4.addConstraint(Sketcher.Constraint("Horizontal", 5))
sketch4.addConstraint(Sketcher.Constraint("Vertical", 6))
sketch4.addConstraint(Sketcher.Constraint("Horizontal", 7))
sketch4.addConstraint(Sketcher.Constraint("Vertical", 8))
sketch4.addConstraint(Sketcher.Constraint("Horizontal", 9))
sketch4.addConstraint(Sketcher.Constraint("Vertical", 10))
sketch4.addConstraint(Sketcher.Constraint("Horizontal", 11))
sketch4.addConstraint(Sketcher.Constraint("Equal", 16, 17))
sketch4.addConstraint(Sketcher.Constraint("Equal", 18, 19))
sketch4.addConstraint(Sketcher.Constraint("Symmetric", 5, 2, 8, 2, -1, 1))
sketch4.addConstraint(Sketcher.Constraint("Symmetric", 16, 3, 17, 3, -2))
sketch4.addConstraint(Sketcher.Constraint("Symmetric", 18, 3, 19, 3, -2))
sketch4.addConstraint(Sketcher.Constraint("Symmetric", 4, 2, 9, 2, -2))
sketch4.addConstraint(Sketcher.Constraint("Symmetric", 3, 2, 12, 2, -2))
sketch4.addConstraint(Sketcher.Constraint("Symmetric", 2, 2, 13, 2, -2))
sketch4.addConstraint(Sketcher.Constraint("Symmetric", 1, 2, 14, 2, -2))
sketch4.addConstraint(Sketcher.Constraint("Symmetric", 0, 2, 15, 2, -2))
sketch4.addConstraint(Sketcher.Constraint("Perpendicular", 0, 1))
sketch4.addConstraint(Sketcher.Constraint("Perpendicular", 1, 2))
sketch4.addConstraint(Sketcher.Constraint("Perpendicular", 2, 3))
sketch4.addConstraint(Sketcher.Constraint("Horizontal", 7, 2, 10, 2))
sketch4.addConstraint(Sketcher.Constraint("Diameter", 18, Q("0.5 in")))
sketch4.addConstraint(Sketcher.Constraint("Diameter", 16, Q("0.135 in")))
sketch4.addConstraint(Sketcher.Constraint("Angle", 0, Q("150 deg")))
sketch4.addConstraint(Sketcher.Constraint("DistanceX", 16, 3, 17, 3, Q("1 in")))
sketch4.addConstraint(Sketcher.Constraint("DistanceX", 17, 3, 18, 3, Q("2 in")))
sketch4.addConstraint(Sketcher.Constraint("DistanceX", 5, 1, 5, 2, Q("0.36 in")))
sketch4.addConstraint(Sketcher.Constraint("DistanceY", 4, 2, 4, 1, Q("0.51 in")))
sketch4.addConstraint(Sketcher.Constraint("DistanceX", 5, 2, -1, 1, Q("6.3 in")))
sketch4.addConstraint(Sketcher.Constraint("Distance", 0, Q("0.51 in")))
sketch4.addConstraint(Sketcher.Constraint("Distance", 1, Q("0.36 in")))
sketch4.addConstraint(Sketcher.Constraint("DistanceY", -1, 1, 16, 3, Q("1.175 in")))
sketch4.addConstraint(Sketcher.Constraint("DistanceX", 0, 2, -1, 1, Q("9.865 in")))
sketch4.addConstraint(Sketcher.Constraint("DistanceY", 1, 2, 19, 3, 226.1428))
sketch4.addConstraint(Sketcher.Constraint("DistanceY", -1, 1, 18, 3, 400.139428))
pocket3 = body.newObject("PartDesign::Pocket", "Pocket002")
pocket3.Profile = sketch4
pocket3.Type = "ThroughAll"

doc.recompute()
